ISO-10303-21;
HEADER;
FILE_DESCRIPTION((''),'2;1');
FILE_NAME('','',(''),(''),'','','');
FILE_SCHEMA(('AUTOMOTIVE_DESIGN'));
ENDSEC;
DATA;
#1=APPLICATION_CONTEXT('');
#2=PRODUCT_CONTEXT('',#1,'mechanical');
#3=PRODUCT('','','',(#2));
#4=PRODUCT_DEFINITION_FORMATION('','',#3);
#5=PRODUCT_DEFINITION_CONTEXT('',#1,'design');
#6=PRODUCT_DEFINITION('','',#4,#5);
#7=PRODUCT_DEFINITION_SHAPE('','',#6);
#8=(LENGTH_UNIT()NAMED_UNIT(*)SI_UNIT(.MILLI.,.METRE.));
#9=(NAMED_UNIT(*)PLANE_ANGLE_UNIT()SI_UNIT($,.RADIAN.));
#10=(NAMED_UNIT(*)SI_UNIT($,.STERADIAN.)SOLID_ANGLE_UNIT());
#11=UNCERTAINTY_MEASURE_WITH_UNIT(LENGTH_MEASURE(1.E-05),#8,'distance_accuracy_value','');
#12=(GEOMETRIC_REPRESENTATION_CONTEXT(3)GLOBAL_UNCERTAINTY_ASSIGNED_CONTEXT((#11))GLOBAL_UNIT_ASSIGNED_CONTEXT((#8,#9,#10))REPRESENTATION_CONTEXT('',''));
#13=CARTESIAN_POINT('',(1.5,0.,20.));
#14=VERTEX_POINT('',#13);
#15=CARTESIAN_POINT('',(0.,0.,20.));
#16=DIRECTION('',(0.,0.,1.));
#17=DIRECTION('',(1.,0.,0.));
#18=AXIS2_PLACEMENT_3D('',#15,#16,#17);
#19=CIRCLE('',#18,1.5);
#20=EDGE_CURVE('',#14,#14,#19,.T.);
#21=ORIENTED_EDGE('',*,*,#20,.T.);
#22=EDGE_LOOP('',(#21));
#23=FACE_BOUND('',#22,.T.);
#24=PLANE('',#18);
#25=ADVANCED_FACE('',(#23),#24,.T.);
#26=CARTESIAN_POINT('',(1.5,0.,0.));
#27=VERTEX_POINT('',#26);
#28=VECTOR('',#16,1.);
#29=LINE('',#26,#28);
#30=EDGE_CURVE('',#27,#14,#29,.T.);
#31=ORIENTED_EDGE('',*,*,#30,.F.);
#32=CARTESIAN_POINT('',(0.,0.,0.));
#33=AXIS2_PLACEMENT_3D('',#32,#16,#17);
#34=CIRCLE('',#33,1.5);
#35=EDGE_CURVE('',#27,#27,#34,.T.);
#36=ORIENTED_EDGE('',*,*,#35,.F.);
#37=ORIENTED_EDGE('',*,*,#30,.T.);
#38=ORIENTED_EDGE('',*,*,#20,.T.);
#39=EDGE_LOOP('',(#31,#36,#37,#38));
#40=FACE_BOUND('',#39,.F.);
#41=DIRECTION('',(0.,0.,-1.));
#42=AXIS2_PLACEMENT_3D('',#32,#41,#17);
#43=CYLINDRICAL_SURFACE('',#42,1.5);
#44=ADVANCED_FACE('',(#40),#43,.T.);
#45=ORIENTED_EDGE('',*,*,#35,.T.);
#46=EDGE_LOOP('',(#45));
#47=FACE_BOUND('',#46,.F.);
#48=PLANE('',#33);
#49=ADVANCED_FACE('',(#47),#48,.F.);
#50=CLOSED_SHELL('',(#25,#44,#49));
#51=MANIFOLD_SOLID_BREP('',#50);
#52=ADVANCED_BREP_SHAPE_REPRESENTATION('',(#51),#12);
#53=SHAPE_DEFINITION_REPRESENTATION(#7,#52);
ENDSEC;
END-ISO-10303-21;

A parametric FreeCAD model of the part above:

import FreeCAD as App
import Part
import Sketcher

V = App.Vector
Q = App.Units.Quantity

doc = App.newDocument("Part")
body = doc.addObject("PartDesign::Body", "Body")

sketch1 = body.newObject("Sketcher::SketchObject", "Sketch")
sketch1.AttachmentSupport = (doc.getObject("XY_Plane"), [""])
sketch1.MapMode = "FlatFace"
sketch1.addGeometry(Part.Circle(V(0, 0, 0), V(0, 0, 1), 1.5), False)
sketch1.addConstraint([
    Sketcher.Constraint("Coincident", 0, 3, -1, 1),
    Sketcher.Constraint("Diameter", 0, Q("3 mm")),
])
pad1 = body.newObject("PartDesign::Pad", "Pad")
pad1.Profile = sketch1
pad1.Length = 20

doc.recompute()
